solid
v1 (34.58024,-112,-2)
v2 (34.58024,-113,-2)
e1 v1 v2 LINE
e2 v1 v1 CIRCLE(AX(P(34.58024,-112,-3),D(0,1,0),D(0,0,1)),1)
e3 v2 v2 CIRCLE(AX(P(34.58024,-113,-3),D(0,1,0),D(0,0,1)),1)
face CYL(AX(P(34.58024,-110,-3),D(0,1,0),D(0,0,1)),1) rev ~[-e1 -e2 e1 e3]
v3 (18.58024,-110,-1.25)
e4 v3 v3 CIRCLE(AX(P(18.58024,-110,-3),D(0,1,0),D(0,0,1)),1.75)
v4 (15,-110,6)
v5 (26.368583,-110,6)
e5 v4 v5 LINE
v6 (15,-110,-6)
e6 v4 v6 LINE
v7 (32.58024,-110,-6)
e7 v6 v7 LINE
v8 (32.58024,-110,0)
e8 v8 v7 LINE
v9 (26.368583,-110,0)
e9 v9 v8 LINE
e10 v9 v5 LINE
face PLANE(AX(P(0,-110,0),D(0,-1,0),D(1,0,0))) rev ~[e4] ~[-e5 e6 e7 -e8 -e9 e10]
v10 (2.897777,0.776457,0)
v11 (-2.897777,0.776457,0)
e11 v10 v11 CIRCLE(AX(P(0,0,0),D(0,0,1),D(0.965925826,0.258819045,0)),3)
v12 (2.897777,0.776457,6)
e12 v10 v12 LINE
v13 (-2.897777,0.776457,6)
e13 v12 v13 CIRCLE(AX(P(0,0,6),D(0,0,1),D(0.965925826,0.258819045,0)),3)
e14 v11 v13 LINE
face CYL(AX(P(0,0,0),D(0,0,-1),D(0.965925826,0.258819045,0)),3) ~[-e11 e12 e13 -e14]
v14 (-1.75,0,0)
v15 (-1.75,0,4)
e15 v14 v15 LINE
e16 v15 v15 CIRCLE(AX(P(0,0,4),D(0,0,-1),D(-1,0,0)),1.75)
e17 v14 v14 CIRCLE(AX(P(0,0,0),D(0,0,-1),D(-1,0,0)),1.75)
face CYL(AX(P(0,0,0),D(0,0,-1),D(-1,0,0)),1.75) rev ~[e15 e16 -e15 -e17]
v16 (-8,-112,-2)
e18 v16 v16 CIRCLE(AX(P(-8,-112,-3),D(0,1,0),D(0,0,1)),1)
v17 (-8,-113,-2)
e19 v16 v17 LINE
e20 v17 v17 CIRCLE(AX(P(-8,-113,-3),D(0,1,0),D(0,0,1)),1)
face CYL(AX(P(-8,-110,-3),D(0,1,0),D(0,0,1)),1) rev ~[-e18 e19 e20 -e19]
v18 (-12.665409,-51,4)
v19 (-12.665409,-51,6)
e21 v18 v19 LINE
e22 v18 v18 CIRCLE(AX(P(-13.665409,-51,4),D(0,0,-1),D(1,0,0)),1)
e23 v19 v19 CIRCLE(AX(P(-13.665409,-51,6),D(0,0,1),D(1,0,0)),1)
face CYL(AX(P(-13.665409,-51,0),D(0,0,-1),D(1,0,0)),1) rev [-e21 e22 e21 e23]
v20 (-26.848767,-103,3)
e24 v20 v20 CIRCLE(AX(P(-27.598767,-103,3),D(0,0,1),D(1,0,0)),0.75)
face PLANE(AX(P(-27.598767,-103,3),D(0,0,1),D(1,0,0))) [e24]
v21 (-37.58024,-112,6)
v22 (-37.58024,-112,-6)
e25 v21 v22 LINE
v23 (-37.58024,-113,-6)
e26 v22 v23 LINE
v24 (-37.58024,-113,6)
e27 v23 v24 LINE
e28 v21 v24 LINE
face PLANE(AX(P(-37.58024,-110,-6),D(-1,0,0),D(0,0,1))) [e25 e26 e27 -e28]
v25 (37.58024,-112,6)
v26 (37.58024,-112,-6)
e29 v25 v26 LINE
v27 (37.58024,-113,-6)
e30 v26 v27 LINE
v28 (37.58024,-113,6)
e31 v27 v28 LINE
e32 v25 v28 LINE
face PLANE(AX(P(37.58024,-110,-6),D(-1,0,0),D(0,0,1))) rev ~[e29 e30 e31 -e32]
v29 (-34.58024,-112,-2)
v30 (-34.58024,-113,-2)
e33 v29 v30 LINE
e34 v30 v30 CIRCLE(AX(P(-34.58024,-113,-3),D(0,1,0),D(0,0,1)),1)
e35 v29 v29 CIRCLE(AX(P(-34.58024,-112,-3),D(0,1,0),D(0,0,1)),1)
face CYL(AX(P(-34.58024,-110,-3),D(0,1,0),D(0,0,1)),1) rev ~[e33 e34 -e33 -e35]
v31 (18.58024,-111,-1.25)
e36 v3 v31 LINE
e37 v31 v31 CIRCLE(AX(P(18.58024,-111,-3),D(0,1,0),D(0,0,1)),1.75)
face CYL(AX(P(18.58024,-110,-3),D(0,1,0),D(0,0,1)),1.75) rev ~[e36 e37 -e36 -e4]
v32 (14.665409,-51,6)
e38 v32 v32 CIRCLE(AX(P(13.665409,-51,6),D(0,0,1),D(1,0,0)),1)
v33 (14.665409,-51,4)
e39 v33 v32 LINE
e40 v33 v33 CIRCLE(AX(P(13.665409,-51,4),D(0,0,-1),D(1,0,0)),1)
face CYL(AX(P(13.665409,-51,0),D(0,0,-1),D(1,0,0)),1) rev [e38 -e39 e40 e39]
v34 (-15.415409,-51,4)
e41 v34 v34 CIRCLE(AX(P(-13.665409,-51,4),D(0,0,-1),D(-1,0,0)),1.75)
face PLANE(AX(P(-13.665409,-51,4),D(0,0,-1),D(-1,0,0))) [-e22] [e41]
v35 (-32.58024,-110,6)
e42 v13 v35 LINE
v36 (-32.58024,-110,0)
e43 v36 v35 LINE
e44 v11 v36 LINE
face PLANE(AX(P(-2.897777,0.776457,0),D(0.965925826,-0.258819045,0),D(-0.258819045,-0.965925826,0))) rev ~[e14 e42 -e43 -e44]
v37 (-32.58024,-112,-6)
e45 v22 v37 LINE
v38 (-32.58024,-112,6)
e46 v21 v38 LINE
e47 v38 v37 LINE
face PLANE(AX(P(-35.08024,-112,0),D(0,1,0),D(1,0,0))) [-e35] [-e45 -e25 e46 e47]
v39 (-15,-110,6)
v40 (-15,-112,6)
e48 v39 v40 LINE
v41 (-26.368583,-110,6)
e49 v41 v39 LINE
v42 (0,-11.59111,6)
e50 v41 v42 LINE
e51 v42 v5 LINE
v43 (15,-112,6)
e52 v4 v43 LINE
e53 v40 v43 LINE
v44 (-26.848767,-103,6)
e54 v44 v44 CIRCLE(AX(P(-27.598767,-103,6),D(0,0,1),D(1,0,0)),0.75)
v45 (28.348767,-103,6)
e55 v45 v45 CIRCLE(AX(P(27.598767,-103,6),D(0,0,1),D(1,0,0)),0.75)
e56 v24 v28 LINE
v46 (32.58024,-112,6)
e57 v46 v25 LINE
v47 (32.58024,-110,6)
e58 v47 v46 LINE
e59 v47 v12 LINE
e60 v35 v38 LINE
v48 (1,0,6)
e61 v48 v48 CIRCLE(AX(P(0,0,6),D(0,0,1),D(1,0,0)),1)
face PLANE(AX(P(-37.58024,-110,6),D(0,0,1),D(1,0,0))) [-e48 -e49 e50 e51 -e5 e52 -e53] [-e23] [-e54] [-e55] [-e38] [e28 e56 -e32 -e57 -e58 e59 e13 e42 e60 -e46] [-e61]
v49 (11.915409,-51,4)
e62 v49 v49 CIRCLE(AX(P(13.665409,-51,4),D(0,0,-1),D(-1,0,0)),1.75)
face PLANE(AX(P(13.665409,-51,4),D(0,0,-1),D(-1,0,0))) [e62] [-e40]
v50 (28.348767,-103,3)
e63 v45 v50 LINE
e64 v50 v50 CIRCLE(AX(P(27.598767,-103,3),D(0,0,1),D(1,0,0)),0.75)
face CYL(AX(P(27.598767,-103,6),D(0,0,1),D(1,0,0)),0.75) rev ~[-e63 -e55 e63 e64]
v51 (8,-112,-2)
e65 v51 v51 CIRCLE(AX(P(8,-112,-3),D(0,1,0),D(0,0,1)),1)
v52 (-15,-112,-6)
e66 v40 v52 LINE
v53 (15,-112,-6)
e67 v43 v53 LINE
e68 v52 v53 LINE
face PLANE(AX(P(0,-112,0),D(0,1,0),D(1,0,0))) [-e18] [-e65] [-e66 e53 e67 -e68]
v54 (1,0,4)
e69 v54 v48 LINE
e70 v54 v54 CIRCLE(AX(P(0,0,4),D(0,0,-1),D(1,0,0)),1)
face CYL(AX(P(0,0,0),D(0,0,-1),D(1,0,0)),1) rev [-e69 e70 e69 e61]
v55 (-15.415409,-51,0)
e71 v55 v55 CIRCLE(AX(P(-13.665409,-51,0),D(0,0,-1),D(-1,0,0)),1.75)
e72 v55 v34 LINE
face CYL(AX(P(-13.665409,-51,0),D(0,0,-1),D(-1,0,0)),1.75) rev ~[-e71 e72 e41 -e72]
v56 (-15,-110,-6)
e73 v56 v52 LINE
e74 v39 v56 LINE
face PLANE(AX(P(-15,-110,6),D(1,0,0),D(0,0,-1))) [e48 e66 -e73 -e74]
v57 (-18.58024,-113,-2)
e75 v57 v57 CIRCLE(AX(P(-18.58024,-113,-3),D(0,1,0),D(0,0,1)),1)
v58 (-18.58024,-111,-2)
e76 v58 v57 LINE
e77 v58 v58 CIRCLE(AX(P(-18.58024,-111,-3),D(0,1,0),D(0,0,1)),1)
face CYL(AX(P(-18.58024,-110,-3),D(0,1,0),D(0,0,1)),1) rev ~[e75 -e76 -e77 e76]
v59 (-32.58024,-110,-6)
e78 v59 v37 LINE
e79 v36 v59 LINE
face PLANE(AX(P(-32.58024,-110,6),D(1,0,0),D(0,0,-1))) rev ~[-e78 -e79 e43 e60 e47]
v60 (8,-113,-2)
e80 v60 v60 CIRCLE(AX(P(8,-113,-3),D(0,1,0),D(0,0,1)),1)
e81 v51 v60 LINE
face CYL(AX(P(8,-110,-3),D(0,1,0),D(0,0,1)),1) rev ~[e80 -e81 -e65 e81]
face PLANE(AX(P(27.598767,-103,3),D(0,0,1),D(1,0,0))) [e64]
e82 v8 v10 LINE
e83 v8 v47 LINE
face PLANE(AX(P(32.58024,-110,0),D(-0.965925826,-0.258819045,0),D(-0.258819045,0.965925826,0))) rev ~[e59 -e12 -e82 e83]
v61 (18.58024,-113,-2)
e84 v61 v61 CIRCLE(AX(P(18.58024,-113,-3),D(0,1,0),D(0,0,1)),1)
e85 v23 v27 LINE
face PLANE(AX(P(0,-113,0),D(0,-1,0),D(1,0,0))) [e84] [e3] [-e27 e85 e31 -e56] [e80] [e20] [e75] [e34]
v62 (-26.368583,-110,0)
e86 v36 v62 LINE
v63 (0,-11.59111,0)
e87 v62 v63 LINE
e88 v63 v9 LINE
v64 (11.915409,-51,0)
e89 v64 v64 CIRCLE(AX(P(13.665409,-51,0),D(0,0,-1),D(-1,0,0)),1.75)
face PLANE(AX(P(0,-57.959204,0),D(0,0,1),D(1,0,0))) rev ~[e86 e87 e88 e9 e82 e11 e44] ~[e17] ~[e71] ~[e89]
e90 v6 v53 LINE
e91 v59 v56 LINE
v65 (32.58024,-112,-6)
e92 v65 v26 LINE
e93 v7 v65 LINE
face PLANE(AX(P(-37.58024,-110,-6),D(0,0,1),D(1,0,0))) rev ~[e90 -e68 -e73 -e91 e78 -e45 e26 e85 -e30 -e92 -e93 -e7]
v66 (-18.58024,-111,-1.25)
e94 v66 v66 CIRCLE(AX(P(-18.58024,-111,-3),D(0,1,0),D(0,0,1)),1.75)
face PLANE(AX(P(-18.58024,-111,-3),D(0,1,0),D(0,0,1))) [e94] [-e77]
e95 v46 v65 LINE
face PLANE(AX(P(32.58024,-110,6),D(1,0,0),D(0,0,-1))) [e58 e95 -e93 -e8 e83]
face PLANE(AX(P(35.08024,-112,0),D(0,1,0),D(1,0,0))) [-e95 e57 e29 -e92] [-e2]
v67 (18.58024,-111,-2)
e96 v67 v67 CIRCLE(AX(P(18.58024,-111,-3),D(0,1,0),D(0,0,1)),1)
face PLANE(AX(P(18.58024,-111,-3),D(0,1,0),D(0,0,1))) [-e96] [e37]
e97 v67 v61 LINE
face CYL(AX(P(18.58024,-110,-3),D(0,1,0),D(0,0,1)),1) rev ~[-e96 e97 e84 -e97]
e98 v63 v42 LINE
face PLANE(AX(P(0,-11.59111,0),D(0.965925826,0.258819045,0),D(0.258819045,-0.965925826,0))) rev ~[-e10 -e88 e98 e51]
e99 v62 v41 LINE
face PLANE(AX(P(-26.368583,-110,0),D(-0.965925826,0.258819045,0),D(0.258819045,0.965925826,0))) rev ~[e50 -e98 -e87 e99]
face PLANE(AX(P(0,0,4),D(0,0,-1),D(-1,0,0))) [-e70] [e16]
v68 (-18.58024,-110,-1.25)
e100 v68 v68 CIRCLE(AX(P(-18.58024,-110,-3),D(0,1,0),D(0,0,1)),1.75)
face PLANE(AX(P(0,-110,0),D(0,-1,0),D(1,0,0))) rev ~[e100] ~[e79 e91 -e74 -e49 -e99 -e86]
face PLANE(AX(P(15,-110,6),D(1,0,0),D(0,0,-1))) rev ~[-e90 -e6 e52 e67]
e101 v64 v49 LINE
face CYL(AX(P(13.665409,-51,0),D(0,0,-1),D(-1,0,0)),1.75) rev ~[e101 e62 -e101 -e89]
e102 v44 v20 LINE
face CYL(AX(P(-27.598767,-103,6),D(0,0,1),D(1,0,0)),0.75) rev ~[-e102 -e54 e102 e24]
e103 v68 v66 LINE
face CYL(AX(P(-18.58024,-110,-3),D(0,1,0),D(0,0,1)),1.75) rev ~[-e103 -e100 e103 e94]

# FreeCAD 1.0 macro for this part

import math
import FreeCAD as App
import Part
import Sketcher
from FreeCAD import Vector
Q = App.Units.Quantity


def add_polygon(sketch, points):
    """Adds a closed chain of lines whose ends are joined by coincident constraints."""
    first, n = sketch.GeometryCount, len(points)
    for a, b in zip(points, points[1:] + points[:1]):
        sketch.addGeometry(Part.LineSegment(App.Vector(*a, 0), App.Vector(*b, 0)), False)
    for i in range(n):
        sketch.addConstraint(Sketcher.Constraint("Coincident", first + i, 2, first + (i + 1) % n, 1))

doc = App.newDocument("Part")
body = doc.addObject("PartDesign::Body", "Body")

# Sketch on XY plane
sketch1 = body.newObject("Sketcher::SketchObject", "Sketch")
sketch1.AttachmentSupport = (doc.getObject("XY_Plane"), [""])
sketch1.MapMode = "FlatFace"
sketch1.addGeometry([
    Part.LineSegment(Vector(0, -11.6, 0), Vector(26.4, -110, 0)),  # 0
    Part.LineSegment(Vector(26.4, -110, 0), Vector(32.6, -110, 0)),  # 1
    Part.LineSegment(Vector(32.6, -110, 0), Vector(2.9, 0.8, 0)),  # 2
    Part.ArcOfCircle(Part.Circle(Vector(0, 0, 0), Vector(0, 0, 1), 3), math.radians(15), math.radians(165)),  # 3
    Part.LineSegment(Vector(-2.9, 0.8, 0), Vector(-32.6, -110, 0)),  # 4
    Part.LineSegment(Vector(-32.6, -110, 0), Vector(-26.4, -110, 0)),  # 5
    Part.LineSegment(Vector(-26.4, -110, 0), Vector(0, -11.6, 0)),  # 6
    Part.Circle(Vector(-13.7, -51, 0), Vector(0, 0, 1), 1),  # 7
    Part.Circle(Vector(13.7, -51, 0), Vector(0, 0, 1), 1),  # 8
    Part.Circle(Vector(0, 0, 0), Vector(0, 0, 1), 1),  # 9
], False)
sketch1.addConstraint([
    Sketcher.Constraint("Coincident", 0, 2, 1, 1),
    Sketcher.Constraint("Coincident", 1, 2, 2, 1),
    Sketcher.Constraint("Tangent", 2, 2, 3, 1),
    Sketcher.Constraint("Tangent", 3, 2, 4, 1),
    Sketcher.Constraint("Coincident", 4, 2, 5, 1),
    Sketcher.Constraint("Coincident", 5, 2, 6, 1),
    Sketcher.Constraint("Coincident", 6, 2, 0, 1),
    Sketcher.Constraint("Horizontal", 1),
    Sketcher.Constraint("Horizontal", 5),
    Sketcher.Constraint("Coincident", 3, 3, -1, 1),
    Sketcher.Constraint("Coincident", 9, 3, -1, 1),
    Sketcher.Constraint("Equal", 7, 8),
    Sketcher.Constraint("Equal", 8, 9),
    Sketcher.Constraint("Symmetric", 7, 3, 8, 3, -2),
    Sketcher.Constraint("Symmetric", 1, 2, 4, 2, -2),
    Sketcher.Constraint("PointOnObject", 6, 2, -2),
    Sketcher.Constraint("Parallel", 0, 2),
    Sketcher.Constraint("Parallel", 4, 6),
    Sketcher.Constraint("Diameter", 7, 2.0),
    Sketcher.Constraint("Radius", 3, 3.0),
    Sketcher.Constraint("Angle", 0, Q("-75 deg")),
    Sketcher.Constraint("DistanceY", 7, 3, -1, 1, 51.0),
    Sketcher.Constraint("DistanceY", 0, 2, -1, 1, 110.0),
    Sketcher.Constraint("Distance", 0, 101.88038),
    Sketcher.Constraint("DistanceX", 7, 3, -1, 1, 13.665409),
])
pad1 = body.newObject("PartDesign::Pad", "Pad")
pad1.Profile = sketch1
pad1.Length = 6

# Sketch on XY plane
sketch2 = body.newObject("Sketcher::SketchObject", "Sketch001")
sketch2.AttachmentSupport = (doc.getObject("XY_Plane"), [""])
sketch2.MapMode = "FlatFace"
sketch2.addGeometry([
    Part.Circle(Vector(0, 0, 0), Vector(0, 0, 1), 1.8),
    Part.Circle(Vector(-13.7, -51, 0), Vector(0, 0, 1), 1.8),
    Part.Circle(Vector(13.7, -51, 0), Vector(0, 0, 1), 1.8),
], False)
sketch2.addConstraint([
    Sketcher.Constraint("Coincident", 0, 3, -1, 1),
    Sketcher.Constraint("Equal", 0, 1),
    Sketcher.Constraint("Equal", 1, 2),
    Sketcher.Constraint("Symmetric", 1, 3, 2, 3, -2),
    Sketcher.Constraint("Diameter", 0, 3.5),
    Sketcher.Constraint("DistanceY", 1, 3, -1, 1, 51.0),
    Sketcher.Constraint("DistanceX", 1, 3, -1, 1, 13.665409),
])
pocket1 = body.newObject("PartDesign::Pocket", "Pocket")
pocket1.Profile = sketch2
pocket1.Length = 4
pocket1.Reversed = True

# Sketch on XZ plane
sketch3 = body.newObject("Sketcher::SketchObject", "Sketch002")
sketch3.AttachmentSupport = (doc.getObject("XZ_Plane"), [""])
sketch3.MapMode = "FlatFace"
sketch3.AttachmentOffset = App.Placement(Vector(0, 0, 110), App.Rotation())
add_polygon(sketch3, [(-38, 6), (-38, -6), (38, -6), (38, 6)])  # lines 0-3
sketch3.addConstraint([
    Sketcher.Constraint("Vertical", 0),
    Sketcher.Constraint("Horizontal", 1),
    Sketcher.Constraint("Vertical", 2),
    Sketcher.Constraint("Horizontal", 3),
    Sketcher.Constraint("Symmetric", 0, 2, 2, 2, -1, 1),
    Sketcher.Constraint("DistanceY", 0, 2, 0, 1, 12.0),
    Sketcher.Constraint("DistanceX", 1, 1, 1, 2, 75.160479),
])
pad2 = body.newObject("PartDesign::Pad", "Pad001")
pad2.Profile = sketch3
pad2.Length = 3

# Sketch on XY plane
sketch4 = body.newObject("Sketcher::SketchObject", "Sketch003")
sketch4.AttachmentSupport = (doc.getObject("XY_Plane"), [""])
sketch4.MapMode = "FlatFace"
sketch4.AttachmentOffset = App.Placement(Vector(0, 0, 6), App.Rotation())
sketch4.addGeometry([
    Part.Circle(Vector(-27.6, -103, 0), Vector(0, 0, 1), 0.8),
    Part.Circle(Vector(27.6, -103, 0), Vector(0, 0, 1), 0.8),
], False)
sketch4.addConstraint([
    Sketcher.Constraint("Equal", 0, 1),
    Sketcher.Constraint("Symmetric", 0, 3, 1, 3, -2),
    Sketcher.Constraint("Diameter", 0, 1.5),
    Sketcher.Constraint("DistanceY", 0, 3, -1, 1, 103.0),
    Sketcher.Constraint("DistanceX", 0, 3, -1, 1, 27.598767),
])
pocket2 = body.newObject("PartDesign::Pocket", "Pocket001")
pocket2.Profile = sketch4
pocket2.Length = 3

# Sketch on XZ plane
sketch5 = body.newObject("Sketcher::SketchObject", "Sketch004")
sketch5.AttachmentSupport = (doc.getObject("XZ_Plane"), [""])
sketch5.MapMode = "FlatFace"
sketch5.AttachmentOffset = App.Placement(Vector(0, 0, 110), App.Rotation())
add_polygon(sketch5, [(-38, -6), (-38, 6), (-33, 6), (-33, -6)])  # lines 0-3
add_polygon(sketch5, [(33, -6), (33, 6), (38, 6), (38, -6)])  # lines 4-7
add_polygon(sketch5, [(-15, -6), (-15, 6), (15, 6), (15, -6)])  # lines 8-11
sketch5.addConstraint([
    Sketcher.Constraint("Vertical", 0),
    Sketcher.Constraint("Horizontal", 1),
    Sketcher.Constraint("Vertical", 2),
    Sketcher.Constraint("Horizontal", 3),
    Sketcher.Constraint("Vertical", 4),
    Sketcher.Constraint("Horizontal", 5),
    Sketcher.Constraint("Vertical", 6),
    Sketcher.Constraint("Horizontal", 7),
    Sketcher.Constraint("Vertical", 8),
    Sketcher.Constraint("Horizontal", 9),
    Sketcher.Constraint("Vertical", 10),
    Sketcher.Constraint("Horizontal", 11),
    Sketcher.Constraint("Symmetric", 2, 2, 4, 2, -1, 1),
    Sketcher.Constraint("Symmetric", 0, 2, 6, 2, -1, 1),
    Sketcher.Constraint("Symmetric", 8, 2, 10, 2, -1, 1),
    Sketcher.Constraint("Horizontal", 1, 2, 4, 2),
    Sketcher.Constraint("Horizontal", 5, 2, 8, 2),
    Sketcher.Constraint("DistanceX", 1, 1, 1, 2, 5.0),
    Sketcher.Constraint("DistanceX", 9, 1, 9, 2, 30.0),
    Sketcher.Constraint("DistanceY", 0, 1, 0, 2, 12.0),
    Sketcher.Constraint("DistanceX", 0, 2, -1, 1, 37.58024),
])
pocket3 = body.newObject("PartDesign::Pocket", "Pocket002")
pocket3.Profile = sketch5
pocket3.Length = 2
pocket3.Reversed = True

# Sketch on XZ plane
sketch6 = body.newObject("Sketcher::SketchObject", "Sketch005")
sketch6.AttachmentSupport = (doc.getObject("XZ_Plane"), [""])
sketch6.MapMode = "FlatFace"
sketch6.AttachmentOffset = App.Placement(Vector(0, 0, 110), App.Rotation())
sketch6.addGeometry([
    Part.Circle(Vector(-8, -3, 0), Vector(0, 0, 1), 1),  # 0
    Part.Circle(Vector(-34.6, -3, 0), Vector(0, 0, 1), 1),  # 1
    Part.Circle(Vector(-18.6, -3, 0), Vector(0, 0, 1), 1),  # 2
    Part.Circle(Vector(8, -3, 0), Vector(0, 0, 1), 1),  # 3
    Part.Circle(Vector(18.6, -3, 0), Vector(0, 0, 1), 1),  # 4
    Part.Circle(Vector(34.6, -3, 0), Vector(0, 0, 1), 1),  # 5
], False)
sketch6.addConstraint([
    Sketcher.Constraint("Equal", 0, 1),
    Sketcher.Constraint("Equal", 1, 2),
    Sketcher.Constraint("Equal", 2, 3),
    Sketcher.Constraint("Equal", 3, 4),
    Sketcher.Constraint("Equal", 4, 5),
    Sketcher.Constraint("Symmetric", 0, 3, 3, 3, -2),
    Sketcher.Constraint("Symmetric", 2, 3, 4, 3, -2),
    Sketcher.Constraint("Symmetric", 1, 3, 5, 3, -2),
    Sketcher.Constraint("Horizontal", 0, 3, 1, 3),
    Sketcher.Constraint("Horizontal", 1, 3, 2, 3),
    Sketcher.Constraint("Diameter", 0, 2.0),
    Sketcher.Constraint("DistanceX", 0, 3, -1, 1, 8.0),
    Sketcher.Constraint("DistanceY", 0, 3, -1, 1, 3.0),
    Sketcher.Constraint("DistanceX", 1, 3, 2, 3, 16.0),
    Sketcher.Constraint("DistanceX", 1, 3, -1, 1, 34.58024),
])
pocket4 = body.newObject("PartDesign::Pocket", "Pocket003")
pocket4.Profile = sketch6
pocket4.Type = "ThroughAll"
pocket4.Reversed = True

# Sketch on XZ plane
sketch7 = body.newObject("Sketcher::SketchObject", "Sketch006")
sketch7.AttachmentSupport = (doc.getObject("XZ_Plane"), [""])
sketch7.MapMode = "FlatFace"
sketch7.AttachmentOffset = App.Placement(Vector(0, 0, 110), App.Rotation())
sketch7.addGeometry([
    Part.Circle(Vector(-34.6, -3, 0), Vector(0, 0, 1), 1),  # 0
    Part.Circle(Vector(-8, -3, 0), Vector(0, 0, 1), 1),  # 1
    Part.Circle(Vector(8, -3, 0), Vector(0, 0, 1), 1),  # 2
    Part.Circle(Vector(34.6, -3, 0), Vector(0, 0, 1), 1),  # 3
    Part.Circle(Vector(18.6, -3, 0), Vector(0, 0, 1), 1.8),  # 4
    Part.Circle(Vector(18.6, -3, 0), Vector(0, 0, 1), 1),  # 5
    Part.Circle(Vector(-18.6, -3, 0), Vector(0, 0, 1), 1.8),  # 6
    Part.Circle(Vector(-18.6, -3, 0), Vector(0, 0, 1), 1),  # 7
], False)
sketch7.addConstraint([
    Sketcher.Constraint("Coincident", 5, 3, 4, 3),
    Sketcher.Constraint("Coincident", 7, 3, 6, 3),
    Sketcher.Constraint("Equal", 0, 1),
    Sketcher.Constraint("Equal", 1, 2),
    Sketcher.Constraint("Equal", 2, 3),
    Sketcher.Constraint("Equal", 3, 5),
    Sketcher.Constraint("Equal", 4, 6),
    Sketcher.Constraint("Equal", 5, 7),
    Sketcher.Constraint("Symmetric", 1, 3, 2, 3, -2),
    Sketcher.Constraint("Symmetric", 0, 3, 3, 3, -2),
    Sketcher.Constraint("Symmetric", 4, 3, 6, 3, -2),
    Sketcher.Constraint("Horizontal", 0, 3, 1, 3),
    Sketcher.Constraint("Horizontal", 3, 3, 4, 3),
    Sketcher.Constraint("Diameter", 0, 2.0),
    Sketcher.Constraint("Diameter", 4, 3.5),
    Sketcher.Constraint("DistanceY", 0, 3, -1, 1, 3.0),
    Sketcher.Constraint("DistanceX", 1, 3, -1, 1, 8.0),
    Sketcher.Constraint("DistanceX", 4, 3, 3, 3, 16.0),
    Sketcher.Constraint("DistanceX", 0, 3, -1, 1, 34.58024),
])
pocket5 = body.newObject("PartDesign::Pocket", "Pocket004")
pocket5.Profile = sketch7
pocket5.Length = 1
pocket5.Reversed = True

doc.recompute()
